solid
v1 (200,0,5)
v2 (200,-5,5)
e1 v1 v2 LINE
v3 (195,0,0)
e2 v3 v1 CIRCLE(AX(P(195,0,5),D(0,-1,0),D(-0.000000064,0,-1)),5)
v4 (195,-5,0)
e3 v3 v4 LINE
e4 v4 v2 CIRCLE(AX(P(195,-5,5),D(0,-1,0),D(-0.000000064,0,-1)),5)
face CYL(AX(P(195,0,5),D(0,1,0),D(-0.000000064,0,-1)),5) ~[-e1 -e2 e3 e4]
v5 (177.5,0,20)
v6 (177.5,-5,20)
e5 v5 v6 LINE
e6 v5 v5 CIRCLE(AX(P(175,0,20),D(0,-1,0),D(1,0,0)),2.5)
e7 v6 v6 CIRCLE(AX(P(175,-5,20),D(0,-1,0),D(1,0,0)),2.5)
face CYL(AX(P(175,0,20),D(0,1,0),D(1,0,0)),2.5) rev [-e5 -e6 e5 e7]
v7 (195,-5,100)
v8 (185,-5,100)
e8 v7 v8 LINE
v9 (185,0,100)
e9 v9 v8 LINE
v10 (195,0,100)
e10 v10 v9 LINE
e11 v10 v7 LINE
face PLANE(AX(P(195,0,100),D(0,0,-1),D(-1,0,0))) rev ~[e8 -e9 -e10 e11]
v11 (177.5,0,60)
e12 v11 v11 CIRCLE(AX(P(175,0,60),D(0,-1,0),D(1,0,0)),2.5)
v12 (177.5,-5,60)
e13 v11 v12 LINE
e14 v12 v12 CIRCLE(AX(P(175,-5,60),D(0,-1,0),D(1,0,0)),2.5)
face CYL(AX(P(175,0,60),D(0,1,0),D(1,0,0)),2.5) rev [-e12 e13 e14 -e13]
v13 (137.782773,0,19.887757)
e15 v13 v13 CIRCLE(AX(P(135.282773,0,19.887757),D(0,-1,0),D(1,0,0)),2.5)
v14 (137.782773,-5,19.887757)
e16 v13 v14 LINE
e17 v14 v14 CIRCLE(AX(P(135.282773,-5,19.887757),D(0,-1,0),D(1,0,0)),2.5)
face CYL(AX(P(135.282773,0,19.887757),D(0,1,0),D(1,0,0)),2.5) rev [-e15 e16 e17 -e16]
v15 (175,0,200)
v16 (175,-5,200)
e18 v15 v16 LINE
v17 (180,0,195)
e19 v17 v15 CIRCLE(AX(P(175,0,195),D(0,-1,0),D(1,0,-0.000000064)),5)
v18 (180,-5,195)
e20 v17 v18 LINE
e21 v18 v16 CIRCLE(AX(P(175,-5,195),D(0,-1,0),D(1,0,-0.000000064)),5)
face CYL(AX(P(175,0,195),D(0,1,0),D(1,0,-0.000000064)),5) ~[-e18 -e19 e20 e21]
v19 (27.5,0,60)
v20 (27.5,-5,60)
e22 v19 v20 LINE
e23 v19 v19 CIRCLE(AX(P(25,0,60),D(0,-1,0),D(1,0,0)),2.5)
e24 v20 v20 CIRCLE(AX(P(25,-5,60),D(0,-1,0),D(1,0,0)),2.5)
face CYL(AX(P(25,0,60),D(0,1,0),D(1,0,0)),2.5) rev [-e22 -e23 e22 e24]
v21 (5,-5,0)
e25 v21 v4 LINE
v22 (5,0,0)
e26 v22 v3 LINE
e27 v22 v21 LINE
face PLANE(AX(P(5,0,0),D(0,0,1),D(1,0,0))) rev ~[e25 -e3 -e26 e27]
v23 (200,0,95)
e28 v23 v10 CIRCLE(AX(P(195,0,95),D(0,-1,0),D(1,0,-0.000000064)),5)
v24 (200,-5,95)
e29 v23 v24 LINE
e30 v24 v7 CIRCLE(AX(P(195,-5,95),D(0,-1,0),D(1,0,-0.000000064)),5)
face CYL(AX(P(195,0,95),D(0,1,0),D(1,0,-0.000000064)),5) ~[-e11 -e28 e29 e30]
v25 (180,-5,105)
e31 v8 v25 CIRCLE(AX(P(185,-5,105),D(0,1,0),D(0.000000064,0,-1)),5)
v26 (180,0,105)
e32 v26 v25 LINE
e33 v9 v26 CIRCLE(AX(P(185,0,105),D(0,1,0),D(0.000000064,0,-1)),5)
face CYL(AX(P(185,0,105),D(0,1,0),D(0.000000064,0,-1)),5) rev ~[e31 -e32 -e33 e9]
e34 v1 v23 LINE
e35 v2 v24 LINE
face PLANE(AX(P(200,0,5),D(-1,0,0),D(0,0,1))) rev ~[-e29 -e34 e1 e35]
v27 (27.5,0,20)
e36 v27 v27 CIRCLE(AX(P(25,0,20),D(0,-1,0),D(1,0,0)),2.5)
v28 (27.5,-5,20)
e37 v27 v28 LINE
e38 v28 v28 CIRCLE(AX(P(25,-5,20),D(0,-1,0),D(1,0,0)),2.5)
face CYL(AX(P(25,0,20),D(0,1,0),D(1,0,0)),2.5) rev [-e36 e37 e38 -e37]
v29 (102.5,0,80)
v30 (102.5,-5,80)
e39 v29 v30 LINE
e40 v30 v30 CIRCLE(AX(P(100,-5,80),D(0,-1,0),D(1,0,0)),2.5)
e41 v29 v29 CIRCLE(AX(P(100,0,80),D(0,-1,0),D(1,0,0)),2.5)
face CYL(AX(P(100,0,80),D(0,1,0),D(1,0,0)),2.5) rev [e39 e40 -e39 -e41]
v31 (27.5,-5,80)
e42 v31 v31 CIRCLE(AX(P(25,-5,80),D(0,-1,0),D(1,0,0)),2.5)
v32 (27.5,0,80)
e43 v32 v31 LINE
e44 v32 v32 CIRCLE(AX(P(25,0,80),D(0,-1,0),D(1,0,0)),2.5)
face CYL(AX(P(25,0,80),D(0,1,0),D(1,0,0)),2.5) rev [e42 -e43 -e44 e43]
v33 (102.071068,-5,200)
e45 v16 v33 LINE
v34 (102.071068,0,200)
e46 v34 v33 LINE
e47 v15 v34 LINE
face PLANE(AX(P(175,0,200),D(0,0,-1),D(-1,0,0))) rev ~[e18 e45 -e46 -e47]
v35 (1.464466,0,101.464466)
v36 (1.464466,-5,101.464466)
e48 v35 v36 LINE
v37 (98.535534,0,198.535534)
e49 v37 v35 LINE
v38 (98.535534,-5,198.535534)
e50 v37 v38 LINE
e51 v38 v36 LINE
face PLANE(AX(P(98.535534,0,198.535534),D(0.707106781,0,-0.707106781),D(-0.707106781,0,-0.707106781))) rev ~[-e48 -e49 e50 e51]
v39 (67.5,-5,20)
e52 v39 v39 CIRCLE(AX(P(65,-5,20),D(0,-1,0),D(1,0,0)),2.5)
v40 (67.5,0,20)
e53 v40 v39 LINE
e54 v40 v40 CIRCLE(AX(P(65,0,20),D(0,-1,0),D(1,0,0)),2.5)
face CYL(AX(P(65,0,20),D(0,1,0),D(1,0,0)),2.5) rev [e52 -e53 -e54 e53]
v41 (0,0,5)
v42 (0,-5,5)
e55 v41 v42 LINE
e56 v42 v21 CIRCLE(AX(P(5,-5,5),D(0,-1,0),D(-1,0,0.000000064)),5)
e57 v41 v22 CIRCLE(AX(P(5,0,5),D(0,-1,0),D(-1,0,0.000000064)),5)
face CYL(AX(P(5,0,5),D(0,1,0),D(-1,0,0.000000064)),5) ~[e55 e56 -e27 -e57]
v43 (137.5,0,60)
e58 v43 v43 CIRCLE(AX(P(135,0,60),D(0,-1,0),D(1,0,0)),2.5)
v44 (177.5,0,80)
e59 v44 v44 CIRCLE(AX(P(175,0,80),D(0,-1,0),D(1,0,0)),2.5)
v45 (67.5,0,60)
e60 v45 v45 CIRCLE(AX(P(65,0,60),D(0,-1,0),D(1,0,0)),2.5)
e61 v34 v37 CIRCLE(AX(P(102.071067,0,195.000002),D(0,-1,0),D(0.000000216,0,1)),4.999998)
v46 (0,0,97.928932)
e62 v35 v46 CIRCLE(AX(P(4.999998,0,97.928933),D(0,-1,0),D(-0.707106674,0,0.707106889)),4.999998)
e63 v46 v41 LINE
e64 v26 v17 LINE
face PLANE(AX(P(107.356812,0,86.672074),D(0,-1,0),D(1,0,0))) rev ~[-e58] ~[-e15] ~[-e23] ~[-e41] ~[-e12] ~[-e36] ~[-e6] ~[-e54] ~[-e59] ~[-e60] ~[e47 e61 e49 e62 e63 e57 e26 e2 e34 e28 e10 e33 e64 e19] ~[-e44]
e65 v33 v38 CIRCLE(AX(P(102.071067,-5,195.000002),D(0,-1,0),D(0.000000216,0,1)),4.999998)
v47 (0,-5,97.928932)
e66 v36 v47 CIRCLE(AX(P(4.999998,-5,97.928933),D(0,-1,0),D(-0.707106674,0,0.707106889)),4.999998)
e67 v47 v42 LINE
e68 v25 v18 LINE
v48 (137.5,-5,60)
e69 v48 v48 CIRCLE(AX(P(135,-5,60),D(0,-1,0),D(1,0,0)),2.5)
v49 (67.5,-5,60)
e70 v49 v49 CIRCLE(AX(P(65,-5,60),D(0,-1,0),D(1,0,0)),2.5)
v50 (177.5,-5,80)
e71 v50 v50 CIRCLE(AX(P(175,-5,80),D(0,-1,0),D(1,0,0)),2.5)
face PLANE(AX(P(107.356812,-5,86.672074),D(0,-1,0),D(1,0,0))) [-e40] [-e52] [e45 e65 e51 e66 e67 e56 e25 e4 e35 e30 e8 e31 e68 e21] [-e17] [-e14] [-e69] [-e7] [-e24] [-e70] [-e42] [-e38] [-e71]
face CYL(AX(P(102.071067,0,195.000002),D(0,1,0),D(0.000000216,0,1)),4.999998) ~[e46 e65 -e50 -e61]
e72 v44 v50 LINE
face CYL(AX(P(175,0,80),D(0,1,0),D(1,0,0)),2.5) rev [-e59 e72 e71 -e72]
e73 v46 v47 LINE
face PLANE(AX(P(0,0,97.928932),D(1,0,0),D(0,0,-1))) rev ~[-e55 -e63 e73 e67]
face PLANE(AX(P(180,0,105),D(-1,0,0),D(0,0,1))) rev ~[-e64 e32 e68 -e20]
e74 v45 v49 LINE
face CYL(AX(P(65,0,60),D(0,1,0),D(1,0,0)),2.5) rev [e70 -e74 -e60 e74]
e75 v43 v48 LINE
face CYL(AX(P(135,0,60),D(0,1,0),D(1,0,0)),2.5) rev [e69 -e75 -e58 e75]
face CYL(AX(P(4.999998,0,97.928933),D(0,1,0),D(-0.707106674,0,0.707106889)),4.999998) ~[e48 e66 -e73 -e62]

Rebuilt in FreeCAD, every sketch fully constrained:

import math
import FreeCAD as App
import Part
import Sketcher
Q = App.Units.Quantity

doc = App.newDocument("Part")
body = doc.addObject("PartDesign::Body", "Body")

sketch1 = body.newObject("Sketcher::SketchObject", "Sketch")
sketch1.AttachmentSupport = (doc.getObject("XZ_Plane"), [""])
sketch1.MapMode = "FlatFace"
sketch1.addGeometry(Part.LineSegment(App.Vector(0, 97.9, 0), App.Vector(0, 5, 0)), False)
sketch1.addGeometry(Part.ArcOfCircle(Part.Circle(App.Vector(5, 5, 0), App.Vector(0, 0, 1), 5), math.radians(180), math.radians(270)), False)
sketch1.addGeometry(Part.LineSegment(App.Vector(5, 0, 0), App.Vector(195, 0, 0)), False)
sketch1.addGeometry(Part.ArcOfCircle(Part.Circle(App.Vector(195, 5, 0), App.Vector(0, 0, 1), 5), math.radians(-90), math.radians(0)), False)
sketch1.addGeometry(Part.LineSegment(App.Vector(200, 5, 0), App.Vector(200, 95, 0)), False)
sketch1.addGeometry(Part.ArcOfCircle(Part.Circle(App.Vector(195, 95, 0), App.Vector(0, 0, 1), 5), math.radians(0), math.radians(90)), False)
sketch1.addGeometry(Part.LineSegment(App.Vector(195, 100, 0), App.Vector(185, 100, 0)), False)
sketch1.addGeometry(Part.ArcOfCircle(Part.Circle(App.Vector(185, 105, 0), App.Vector(0, 0, 1), 5), math.radians(180), math.radians(270)), False)
sketch1.addGeometry(Part.LineSegment(App.Vector(180, 105, 0), App.Vector(180, 195, 0)), False)
sketch1.addGeometry(Part.ArcOfCircle(Part.Circle(App.Vector(175, 195, 0), App.Vector(0, 0, 1), 5), math.radians(0), math.radians(90)), False)
sketch1.addGeometry(Part.LineSegment(App.Vector(175, 200, 0), App.Vector(102.1, 200, 0)), False)
sketch1.addGeometry(Part.ArcOfCircle(Part.Circle(App.Vector(102.1, 195, 0), App.Vector(0, 0, 1), 5), math.radians(90), math.radians(135)), False)
sketch1.addGeometry(Part.LineSegment(App.Vector(98.5, 198.5, 0), App.Vector(1.5, 101.5, 0)), False)
sketch1.addGeometry(Part.ArcOfCircle(Part.Circle(App.Vector(5, 97.9, 0), App.Vector(0, 0, 1), 5), math.radians(135), math.radians(180)), False)
sketch1.addGeometry(Part.Circle(App.Vector(25, 20, 0), App.Vector(0, 0, 1), 2.5), False)
sketch1.addGeometry(Part.Circle(App.Vector(65, 20, 0), App.Vector(0, 0, 1), 2.5), False)
sketch1.addGeometry(Part.Circle(App.Vector(135.3, 19.9, 0), App.Vector(0, 0, 1), 2.5), False)
sketch1.addGeometry(Part.Circle(App.Vector(175, 20, 0), App.Vector(0, 0, 1), 2.5), False)
sketch1.addGeometry(Part.Circle(App.Vector(25, 60, 0), App.Vector(0, 0, 1), 2.5), False)
sketch1.addGeometry(Part.Circle(App.Vector(65, 60, 0), App.Vector(0, 0, 1), 2.5), False)
sketch1.addGeometry(Part.Circle(App.Vector(25, 80, 0), App.Vector(0, 0, 1), 2.5), False)
sketch1.addGeometry(Part.Circle(App.Vector(135, 60, 0), App.Vector(0, 0, 1), 2.5), False)
sketch1.addGeometry(Part.Circle(App.Vector(175, 60, 0), App.Vector(0, 0, 1), 2.5), False)
sketch1.addGeometry(Part.Circle(App.Vector(100, 80, 0), App.Vector(0, 0, 1), 2.5), False)
sketch1.addGeometry(Part.Circle(App.Vector(175, 80, 0), App.Vector(0, 0, 1), 2.5), False)
sketch1.addConstraint(Sketcher.Constraint("Tangent", 0, 2, 1, 1))
sketch1.addConstraint(Sketcher.Constraint("Tangent", 1, 2, 2, 1))
sketch1.addConstraint(Sketcher.Constraint("Tangent", 2, 2, 3, 1))
sketch1.addConstraint(Sketcher.Constraint("Tangent", 3, 2, 4, 1))
sketch1.addConstraint(Sketcher.Constraint("Tangent", 4, 2, 5, 1))
sketch1.addConstraint(Sketcher.Constraint("Tangent", 5, 2, 6, 1))
sketch1.addConstraint(Sketcher.Constraint("Tangent", 6, 2, 7, 2))
sketch1.addConstraint(Sketcher.Constraint("Tangent", 7, 1, 8, 1))
sketch1.addConstraint(Sketcher.Constraint("Tangent", 8, 2, 9, 1))
sketch1.addConstraint(Sketcher.Constraint("Tangent", 9, 2, 10, 1))
sketch1.addConstraint(Sketcher.Constraint("Tangent", 10, 2, 11, 1))
sketch1.addConstraint(Sketcher.Constraint("Tangent", 11, 2, 12, 1))
sketch1.addConstraint(Sketcher.Constraint("Tangent", 12, 2, 13, 1))
sketch1.addConstraint(Sketcher.Constraint("Tangent", 13, 2, 0, 1))
sketch1.addConstraint(Sketcher.Constraint("Vertical", 0))
sketch1.addConstraint(Sketcher.Constraint("Horizontal", 2))
sketch1.addConstraint(Sketcher.Constraint("Vertical", 4))
sketch1.addConstraint(Sketcher.Constraint("Horizontal", 6))
sketch1.addConstraint(Sketcher.Constraint("Vertical", 8))
sketch1.addConstraint(Sketcher.Constraint("Horizontal", 10))
sketch1.addConstraint(Sketcher.Constraint("Equal", 1, 3))
sketch1.addConstraint(Sketcher.Constraint("Equal", 3, 5))
sketch1.addConstraint(Sketcher.Constraint("Equal", 5, 7))
sketch1.addConstraint(Sketcher.Constraint("Equal", 7, 9))
sketch1.addConstraint(Sketcher.Constraint("Equal", 9, 11))
sketch1.addConstraint(Sketcher.Constraint("Equal", 11, 13))
sketch1.addConstraint(Sketcher.Constraint("Equal", 14, 15))
sketch1.addConstraint(Sketcher.Constraint("Equal", 15, 16))
sketch1.addConstraint(Sketcher.Constraint("Equal", 16, 17))
sketch1.addConstraint(Sketcher.Constraint("Equal", 17, 18))
sketch1.addConstraint(Sketcher.Constraint("Equal", 18, 19))
sketch1.addConstraint(Sketcher.Constraint("Equal", 19, 20))
sketch1.addConstraint(Sketcher.Constraint("Equal", 20, 21))
sketch1.addConstraint(Sketcher.Constraint("Equal", 21, 22))
sketch1.addConstraint(Sketcher.Constraint("Equal", 22, 23))
sketch1.addConstraint(Sketcher.Constraint("Equal", 23, 24))
sketch1.addConstraint(Sketcher.Constraint("PointOnObject", 0, 2, -2))
sketch1.addConstraint(Sketcher.Constraint("PointOnObject", 1, 2, -1))
sketch1.addConstraint(Sketcher.Constraint("Horizontal", 14, 3, 15, 3))
sketch1.addConstraint(Sketcher.Constraint("Horizontal", 15, 3, 17, 3))
sketch1.addConstraint(Sketcher.Constraint("Horizontal", 18, 3, 19, 3))
sketch1.addConstraint(Sketcher.Constraint("Horizontal", 19, 3, 21, 3))
sketch1.addConstraint(Sketcher.Constraint("Horizontal", 21, 3, 22, 3))
sketch1.addConstraint(Sketcher.Constraint("Horizontal", 20, 3, 23, 3))
sketch1.addConstraint(Sketcher.Constraint("Horizontal", 23, 3, 24, 3))
sketch1.addConstraint(Sketcher.Constraint("Vertical", 9, 3, 17, 3))
sketch1.addConstraint(Sketcher.Constraint("Vertical", 14, 3, 18, 3))
sketch1.addConstraint(Sketcher.Constraint("Vertical", 15, 3, 19, 3))
sketch1.addConstraint(Sketcher.Constraint("Vertical", 18, 3, 20, 3))
sketch1.addConstraint(Sketcher.Constraint("Vertical", 17, 3, 22, 3))
sketch1.addConstraint(Sketcher.Constraint("Vertical", 22, 3, 24, 3))
sketch1.addConstraint(Sketcher.Constraint("Equal", 4, 8))
sketch1.addConstraint(Sketcher.Constraint("Diameter", 14, Q("5 mm")))
sketch1.addConstraint(Sketcher.Constraint("Radius", 1, Q("5 mm")))
sketch1.addConstraint(Sketcher.Constraint("DistanceX", 2, 1, 2, 2, Q("190 mm")))
sketch1.addConstraint(Sketcher.Constraint("DistanceX", 6, 2, 6, 1, Q("10 mm")))
sketch1.addConstraint(Sketcher.Constraint("DistanceY", 4, 1, 4, 2, Q("90 mm")))
sketch1.addConstraint(Sketcher.Constraint("Angle", 12, Q("-135 deg")))
sketch1.addConstraint(Sketcher.Constraint("DistanceX", -1, 1, 14, 3, Q("25 mm")))
sketch1.addConstraint(Sketcher.Constraint("DistanceY", -1, 1, 14, 3, Q("20 mm")))
sketch1.addConstraint(Sketcher.Constraint("DistanceX", -1, 1, 15, 3, Q("65 mm")))
sketch1.addConstraint(Sketcher.Constraint("DistanceY", -1, 1, 18, 3, Q("60 mm")))
sketch1.addConstraint(Sketcher.Constraint("DistanceY", -1, 1, 20, 3, Q("80 mm")))
sketch1.addConstraint(Sketcher.Constraint("DistanceX", -1, 1, 21, 3, Q("135 mm")))
sketch1.addConstraint(Sketcher.Constraint("DistanceX", -1, 1, 23, 3, Q("100 mm")))
sketch1.addConstraint(Sketcher.Constraint("Distance", 12, Q("137.279221 mm")))
sketch1.addConstraint(Sketcher.Constraint("DistanceX", -1, 1, 16, 3, Q("135.282773 mm")))
sketch1.addConstraint(Sketcher.Constraint("DistanceY", -1, 1, 16, 3, Q("19.887757 mm")))
pad1 = body.newObject("PartDesign::Pad", "Pad")
pad1.Profile = sketch1
pad1.Length = 5

doc.recompute()
